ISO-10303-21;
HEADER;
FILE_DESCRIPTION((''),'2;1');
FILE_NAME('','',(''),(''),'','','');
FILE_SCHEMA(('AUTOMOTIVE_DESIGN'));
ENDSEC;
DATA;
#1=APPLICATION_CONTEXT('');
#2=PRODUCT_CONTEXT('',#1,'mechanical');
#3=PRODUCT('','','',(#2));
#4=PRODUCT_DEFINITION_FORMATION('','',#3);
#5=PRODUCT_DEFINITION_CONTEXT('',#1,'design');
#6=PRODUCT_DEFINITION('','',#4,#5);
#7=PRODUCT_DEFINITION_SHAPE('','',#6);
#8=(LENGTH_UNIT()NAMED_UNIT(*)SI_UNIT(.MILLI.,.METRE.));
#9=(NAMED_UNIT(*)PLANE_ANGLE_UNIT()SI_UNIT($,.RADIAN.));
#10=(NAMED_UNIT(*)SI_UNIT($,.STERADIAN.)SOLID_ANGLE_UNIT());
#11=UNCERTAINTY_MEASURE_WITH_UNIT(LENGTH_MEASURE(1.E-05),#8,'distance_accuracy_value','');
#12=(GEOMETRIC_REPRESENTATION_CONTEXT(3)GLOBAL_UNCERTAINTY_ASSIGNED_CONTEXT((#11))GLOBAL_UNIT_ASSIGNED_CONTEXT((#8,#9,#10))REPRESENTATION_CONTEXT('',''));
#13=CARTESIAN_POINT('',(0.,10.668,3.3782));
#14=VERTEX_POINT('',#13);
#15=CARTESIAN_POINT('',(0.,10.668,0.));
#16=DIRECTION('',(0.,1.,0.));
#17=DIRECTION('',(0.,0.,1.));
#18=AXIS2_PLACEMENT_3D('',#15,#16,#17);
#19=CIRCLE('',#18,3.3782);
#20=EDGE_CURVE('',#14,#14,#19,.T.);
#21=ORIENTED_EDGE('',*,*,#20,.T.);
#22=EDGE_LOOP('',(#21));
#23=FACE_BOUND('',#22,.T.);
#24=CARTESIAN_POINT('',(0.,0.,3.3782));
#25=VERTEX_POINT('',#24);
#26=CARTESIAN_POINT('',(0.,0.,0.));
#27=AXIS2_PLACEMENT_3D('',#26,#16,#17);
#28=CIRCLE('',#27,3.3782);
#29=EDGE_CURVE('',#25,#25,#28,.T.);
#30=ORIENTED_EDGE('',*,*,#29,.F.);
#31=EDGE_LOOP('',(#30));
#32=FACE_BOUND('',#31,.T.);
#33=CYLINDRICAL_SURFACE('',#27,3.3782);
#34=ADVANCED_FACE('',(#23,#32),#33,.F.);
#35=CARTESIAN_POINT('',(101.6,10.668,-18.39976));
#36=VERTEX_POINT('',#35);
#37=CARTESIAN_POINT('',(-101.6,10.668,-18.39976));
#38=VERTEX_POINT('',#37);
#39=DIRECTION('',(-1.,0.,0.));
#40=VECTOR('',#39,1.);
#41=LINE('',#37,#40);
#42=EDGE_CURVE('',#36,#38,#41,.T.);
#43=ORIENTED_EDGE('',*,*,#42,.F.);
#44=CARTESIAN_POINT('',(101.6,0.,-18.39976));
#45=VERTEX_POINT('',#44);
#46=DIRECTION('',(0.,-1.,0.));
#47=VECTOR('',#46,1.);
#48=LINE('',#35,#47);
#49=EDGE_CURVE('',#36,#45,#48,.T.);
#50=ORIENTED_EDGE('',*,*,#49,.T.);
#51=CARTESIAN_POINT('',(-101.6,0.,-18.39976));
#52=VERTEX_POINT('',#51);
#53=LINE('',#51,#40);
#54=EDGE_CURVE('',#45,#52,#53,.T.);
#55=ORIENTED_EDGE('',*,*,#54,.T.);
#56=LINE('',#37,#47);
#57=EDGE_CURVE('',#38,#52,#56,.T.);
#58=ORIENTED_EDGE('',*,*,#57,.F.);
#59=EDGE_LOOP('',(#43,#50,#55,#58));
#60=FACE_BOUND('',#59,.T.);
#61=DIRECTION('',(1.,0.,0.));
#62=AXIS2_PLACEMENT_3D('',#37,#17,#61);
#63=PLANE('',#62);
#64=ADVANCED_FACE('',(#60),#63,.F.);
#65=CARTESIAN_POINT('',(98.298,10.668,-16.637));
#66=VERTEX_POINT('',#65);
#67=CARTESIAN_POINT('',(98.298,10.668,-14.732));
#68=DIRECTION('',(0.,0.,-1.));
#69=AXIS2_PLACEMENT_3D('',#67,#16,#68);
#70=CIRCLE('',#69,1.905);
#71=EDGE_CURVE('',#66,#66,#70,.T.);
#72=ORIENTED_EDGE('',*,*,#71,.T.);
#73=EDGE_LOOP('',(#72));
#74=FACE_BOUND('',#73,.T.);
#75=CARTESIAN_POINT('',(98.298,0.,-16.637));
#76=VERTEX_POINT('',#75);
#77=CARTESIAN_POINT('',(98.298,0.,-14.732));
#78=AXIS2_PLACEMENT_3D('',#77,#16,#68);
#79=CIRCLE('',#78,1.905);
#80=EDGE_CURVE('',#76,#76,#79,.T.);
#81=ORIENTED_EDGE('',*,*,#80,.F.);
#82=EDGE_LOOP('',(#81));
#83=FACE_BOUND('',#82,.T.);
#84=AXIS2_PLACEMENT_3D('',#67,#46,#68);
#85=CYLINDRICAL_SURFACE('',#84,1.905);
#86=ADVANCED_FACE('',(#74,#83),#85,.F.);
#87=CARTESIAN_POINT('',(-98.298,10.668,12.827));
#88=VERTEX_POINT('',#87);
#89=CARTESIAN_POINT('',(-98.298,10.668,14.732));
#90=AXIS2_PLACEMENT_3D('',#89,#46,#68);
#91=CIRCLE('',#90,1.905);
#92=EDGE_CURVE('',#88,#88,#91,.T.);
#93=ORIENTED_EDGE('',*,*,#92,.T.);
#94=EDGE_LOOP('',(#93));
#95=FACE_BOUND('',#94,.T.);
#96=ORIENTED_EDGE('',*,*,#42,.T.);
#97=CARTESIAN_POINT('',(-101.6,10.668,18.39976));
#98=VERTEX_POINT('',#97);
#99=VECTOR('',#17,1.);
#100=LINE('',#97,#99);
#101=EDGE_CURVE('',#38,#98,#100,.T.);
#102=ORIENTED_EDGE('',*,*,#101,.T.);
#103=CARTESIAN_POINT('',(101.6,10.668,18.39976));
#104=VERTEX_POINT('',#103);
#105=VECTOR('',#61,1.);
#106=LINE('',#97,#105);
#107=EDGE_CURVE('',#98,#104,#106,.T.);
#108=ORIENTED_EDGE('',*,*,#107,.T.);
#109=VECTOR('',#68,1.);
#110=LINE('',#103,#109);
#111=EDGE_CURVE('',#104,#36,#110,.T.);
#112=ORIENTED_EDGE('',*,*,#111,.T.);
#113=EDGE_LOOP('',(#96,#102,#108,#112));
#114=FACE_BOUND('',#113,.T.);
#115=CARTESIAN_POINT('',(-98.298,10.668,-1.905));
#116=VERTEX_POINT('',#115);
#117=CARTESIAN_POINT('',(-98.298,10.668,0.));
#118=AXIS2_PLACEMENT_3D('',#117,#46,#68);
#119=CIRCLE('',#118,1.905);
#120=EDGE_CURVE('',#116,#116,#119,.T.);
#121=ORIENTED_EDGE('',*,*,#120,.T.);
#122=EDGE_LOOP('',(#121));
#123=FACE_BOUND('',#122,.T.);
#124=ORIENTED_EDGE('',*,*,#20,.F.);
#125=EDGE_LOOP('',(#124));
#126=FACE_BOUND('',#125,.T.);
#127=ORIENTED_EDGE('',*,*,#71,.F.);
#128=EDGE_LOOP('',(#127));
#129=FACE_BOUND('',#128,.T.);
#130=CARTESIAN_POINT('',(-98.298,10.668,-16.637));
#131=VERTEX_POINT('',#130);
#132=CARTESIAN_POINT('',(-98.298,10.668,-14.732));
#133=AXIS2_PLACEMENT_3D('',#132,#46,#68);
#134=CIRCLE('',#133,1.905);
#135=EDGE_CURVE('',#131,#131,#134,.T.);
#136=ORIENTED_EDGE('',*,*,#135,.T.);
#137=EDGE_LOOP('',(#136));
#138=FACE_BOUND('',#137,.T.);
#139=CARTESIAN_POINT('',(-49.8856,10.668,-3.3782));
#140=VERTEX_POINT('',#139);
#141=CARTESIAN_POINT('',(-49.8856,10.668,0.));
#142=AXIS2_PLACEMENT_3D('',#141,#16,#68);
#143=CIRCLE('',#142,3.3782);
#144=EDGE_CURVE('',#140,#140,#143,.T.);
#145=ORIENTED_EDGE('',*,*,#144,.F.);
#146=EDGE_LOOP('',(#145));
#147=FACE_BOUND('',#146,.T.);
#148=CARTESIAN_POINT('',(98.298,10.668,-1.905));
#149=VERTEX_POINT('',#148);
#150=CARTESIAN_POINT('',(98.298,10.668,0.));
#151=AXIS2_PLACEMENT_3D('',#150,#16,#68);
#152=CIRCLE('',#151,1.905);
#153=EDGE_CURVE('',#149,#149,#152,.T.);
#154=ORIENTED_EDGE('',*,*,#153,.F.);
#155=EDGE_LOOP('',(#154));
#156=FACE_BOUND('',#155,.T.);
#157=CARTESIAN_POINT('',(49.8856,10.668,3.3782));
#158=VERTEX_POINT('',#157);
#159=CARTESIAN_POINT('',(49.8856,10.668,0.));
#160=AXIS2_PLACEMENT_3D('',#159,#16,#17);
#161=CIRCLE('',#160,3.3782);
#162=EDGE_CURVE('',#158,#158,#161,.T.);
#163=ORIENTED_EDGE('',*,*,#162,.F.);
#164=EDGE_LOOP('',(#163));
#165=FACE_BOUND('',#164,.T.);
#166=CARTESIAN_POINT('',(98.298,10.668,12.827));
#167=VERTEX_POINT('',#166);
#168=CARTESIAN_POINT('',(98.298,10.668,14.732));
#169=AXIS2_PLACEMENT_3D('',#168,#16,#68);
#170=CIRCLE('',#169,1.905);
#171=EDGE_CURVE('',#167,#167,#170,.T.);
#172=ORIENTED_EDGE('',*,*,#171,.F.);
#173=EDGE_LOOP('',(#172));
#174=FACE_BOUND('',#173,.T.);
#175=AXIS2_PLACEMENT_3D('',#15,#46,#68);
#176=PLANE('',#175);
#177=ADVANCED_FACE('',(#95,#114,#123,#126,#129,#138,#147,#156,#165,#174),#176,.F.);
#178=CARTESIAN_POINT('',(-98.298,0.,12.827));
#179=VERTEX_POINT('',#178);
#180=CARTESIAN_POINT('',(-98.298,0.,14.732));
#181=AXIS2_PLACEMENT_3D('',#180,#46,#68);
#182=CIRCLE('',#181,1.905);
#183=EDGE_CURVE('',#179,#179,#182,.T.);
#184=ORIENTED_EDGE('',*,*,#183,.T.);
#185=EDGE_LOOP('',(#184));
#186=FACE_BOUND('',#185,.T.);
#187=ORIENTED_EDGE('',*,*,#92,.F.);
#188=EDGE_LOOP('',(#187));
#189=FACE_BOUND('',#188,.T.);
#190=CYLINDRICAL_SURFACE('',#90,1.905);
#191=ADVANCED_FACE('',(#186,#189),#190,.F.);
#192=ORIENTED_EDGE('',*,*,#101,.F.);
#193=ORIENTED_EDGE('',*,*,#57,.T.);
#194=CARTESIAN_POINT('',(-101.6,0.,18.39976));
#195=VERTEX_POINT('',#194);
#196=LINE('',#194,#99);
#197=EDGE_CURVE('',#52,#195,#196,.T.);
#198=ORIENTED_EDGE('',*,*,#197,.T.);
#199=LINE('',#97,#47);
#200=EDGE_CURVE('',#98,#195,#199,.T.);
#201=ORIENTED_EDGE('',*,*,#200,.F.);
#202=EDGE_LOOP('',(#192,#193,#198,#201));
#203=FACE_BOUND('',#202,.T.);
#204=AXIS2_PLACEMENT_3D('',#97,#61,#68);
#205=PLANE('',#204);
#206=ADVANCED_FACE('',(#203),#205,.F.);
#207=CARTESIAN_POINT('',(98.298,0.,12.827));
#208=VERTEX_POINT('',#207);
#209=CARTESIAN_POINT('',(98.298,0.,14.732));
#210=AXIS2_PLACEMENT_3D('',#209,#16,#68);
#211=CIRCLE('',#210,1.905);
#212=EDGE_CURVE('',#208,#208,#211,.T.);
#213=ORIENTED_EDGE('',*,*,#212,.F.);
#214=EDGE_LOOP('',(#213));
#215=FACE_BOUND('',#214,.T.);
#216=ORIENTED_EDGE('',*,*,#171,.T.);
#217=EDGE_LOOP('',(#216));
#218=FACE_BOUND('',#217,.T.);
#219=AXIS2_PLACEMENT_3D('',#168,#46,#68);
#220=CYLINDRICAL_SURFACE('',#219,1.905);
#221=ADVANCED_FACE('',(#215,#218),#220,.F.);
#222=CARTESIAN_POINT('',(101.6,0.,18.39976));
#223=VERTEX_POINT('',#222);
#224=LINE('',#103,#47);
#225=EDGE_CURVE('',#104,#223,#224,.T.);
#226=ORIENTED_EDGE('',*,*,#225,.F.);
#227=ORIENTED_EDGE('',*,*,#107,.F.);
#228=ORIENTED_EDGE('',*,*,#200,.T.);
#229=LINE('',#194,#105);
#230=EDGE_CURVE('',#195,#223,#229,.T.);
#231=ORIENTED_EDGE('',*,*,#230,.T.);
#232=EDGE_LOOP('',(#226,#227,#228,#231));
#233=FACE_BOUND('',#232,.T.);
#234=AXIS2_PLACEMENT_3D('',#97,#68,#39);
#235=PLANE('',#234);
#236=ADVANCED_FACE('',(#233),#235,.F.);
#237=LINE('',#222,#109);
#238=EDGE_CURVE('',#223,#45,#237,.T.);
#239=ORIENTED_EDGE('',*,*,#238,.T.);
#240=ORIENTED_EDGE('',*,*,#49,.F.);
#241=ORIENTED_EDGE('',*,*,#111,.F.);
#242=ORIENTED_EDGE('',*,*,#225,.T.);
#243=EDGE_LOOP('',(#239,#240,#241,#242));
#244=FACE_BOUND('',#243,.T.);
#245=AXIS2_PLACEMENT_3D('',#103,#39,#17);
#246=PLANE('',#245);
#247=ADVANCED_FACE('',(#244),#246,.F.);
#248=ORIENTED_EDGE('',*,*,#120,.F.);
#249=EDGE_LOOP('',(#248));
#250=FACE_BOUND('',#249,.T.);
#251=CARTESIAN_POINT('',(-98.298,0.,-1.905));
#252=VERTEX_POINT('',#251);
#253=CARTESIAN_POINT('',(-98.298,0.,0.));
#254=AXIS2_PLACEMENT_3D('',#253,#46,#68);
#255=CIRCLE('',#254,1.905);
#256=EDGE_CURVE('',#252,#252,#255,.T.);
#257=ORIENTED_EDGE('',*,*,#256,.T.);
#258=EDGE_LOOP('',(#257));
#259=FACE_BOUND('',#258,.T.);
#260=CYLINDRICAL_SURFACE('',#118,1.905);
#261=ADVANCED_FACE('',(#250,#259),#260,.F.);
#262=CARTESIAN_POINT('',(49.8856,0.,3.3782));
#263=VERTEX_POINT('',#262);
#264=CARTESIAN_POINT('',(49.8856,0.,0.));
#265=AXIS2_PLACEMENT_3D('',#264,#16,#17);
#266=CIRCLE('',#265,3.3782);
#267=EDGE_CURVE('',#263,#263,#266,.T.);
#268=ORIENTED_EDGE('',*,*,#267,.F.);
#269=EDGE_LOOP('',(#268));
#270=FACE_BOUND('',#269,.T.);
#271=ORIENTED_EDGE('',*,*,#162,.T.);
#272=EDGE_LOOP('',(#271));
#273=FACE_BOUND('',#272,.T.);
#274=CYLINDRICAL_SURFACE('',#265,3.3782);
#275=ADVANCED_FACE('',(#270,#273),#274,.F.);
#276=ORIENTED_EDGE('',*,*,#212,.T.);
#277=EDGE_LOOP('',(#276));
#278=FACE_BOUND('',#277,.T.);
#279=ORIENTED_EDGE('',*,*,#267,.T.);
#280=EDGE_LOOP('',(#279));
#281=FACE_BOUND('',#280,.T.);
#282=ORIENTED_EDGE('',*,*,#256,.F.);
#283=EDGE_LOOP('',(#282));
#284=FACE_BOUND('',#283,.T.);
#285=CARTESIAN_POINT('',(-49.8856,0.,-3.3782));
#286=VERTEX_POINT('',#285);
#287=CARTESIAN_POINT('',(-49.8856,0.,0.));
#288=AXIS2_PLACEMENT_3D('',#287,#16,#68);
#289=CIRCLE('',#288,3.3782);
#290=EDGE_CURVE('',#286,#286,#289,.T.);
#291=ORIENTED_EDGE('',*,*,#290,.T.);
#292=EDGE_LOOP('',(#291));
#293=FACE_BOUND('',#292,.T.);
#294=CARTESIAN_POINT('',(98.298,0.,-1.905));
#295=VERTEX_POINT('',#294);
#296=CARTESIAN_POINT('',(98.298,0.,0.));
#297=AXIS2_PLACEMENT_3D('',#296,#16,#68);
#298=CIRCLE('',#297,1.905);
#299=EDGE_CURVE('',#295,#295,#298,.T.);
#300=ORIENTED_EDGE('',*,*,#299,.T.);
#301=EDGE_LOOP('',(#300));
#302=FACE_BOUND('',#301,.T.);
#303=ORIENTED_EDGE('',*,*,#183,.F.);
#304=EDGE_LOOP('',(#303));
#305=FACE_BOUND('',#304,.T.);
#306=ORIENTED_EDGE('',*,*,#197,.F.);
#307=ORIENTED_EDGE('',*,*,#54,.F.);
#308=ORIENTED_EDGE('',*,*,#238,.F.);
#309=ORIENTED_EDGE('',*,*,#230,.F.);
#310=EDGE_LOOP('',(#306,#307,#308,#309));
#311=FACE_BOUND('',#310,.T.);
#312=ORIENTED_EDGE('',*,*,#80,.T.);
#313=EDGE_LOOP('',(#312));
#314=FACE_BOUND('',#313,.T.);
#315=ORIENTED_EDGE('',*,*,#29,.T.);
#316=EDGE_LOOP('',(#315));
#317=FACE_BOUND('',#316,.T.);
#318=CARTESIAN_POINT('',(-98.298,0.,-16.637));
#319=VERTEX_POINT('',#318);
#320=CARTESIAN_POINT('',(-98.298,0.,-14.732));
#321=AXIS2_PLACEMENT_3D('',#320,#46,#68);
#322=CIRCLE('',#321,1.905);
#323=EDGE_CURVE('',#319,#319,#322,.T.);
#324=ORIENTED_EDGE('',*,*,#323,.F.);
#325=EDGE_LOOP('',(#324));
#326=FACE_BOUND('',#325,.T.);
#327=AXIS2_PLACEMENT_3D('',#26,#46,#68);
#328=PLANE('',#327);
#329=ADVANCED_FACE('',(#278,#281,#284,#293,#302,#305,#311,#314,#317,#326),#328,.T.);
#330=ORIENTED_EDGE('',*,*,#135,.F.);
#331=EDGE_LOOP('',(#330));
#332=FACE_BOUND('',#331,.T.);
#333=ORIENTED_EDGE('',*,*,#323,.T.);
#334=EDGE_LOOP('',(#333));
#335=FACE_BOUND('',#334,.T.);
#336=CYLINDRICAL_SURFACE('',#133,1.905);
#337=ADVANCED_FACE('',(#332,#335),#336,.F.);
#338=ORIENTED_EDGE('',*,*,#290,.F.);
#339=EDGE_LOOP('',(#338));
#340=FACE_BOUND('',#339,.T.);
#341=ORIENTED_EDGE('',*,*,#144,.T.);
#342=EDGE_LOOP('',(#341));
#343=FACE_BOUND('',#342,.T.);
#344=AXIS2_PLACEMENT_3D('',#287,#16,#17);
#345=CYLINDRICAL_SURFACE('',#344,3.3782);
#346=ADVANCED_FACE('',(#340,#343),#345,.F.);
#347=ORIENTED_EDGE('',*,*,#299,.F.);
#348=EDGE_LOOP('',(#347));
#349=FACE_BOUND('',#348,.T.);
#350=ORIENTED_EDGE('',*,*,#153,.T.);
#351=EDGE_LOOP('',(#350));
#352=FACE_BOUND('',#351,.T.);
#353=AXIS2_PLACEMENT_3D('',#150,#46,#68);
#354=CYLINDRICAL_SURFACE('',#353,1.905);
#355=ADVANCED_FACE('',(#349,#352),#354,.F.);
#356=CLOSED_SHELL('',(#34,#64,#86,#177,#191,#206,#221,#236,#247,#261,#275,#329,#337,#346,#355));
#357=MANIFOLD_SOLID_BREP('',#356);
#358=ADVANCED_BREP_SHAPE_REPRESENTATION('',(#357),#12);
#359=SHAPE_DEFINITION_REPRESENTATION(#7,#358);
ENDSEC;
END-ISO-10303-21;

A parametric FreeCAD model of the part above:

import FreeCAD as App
import Part
import Sketcher

V = App.Vector
Q = App.Units.Quantity

doc = App.newDocument("Part")
params = doc.addObject("Spreadsheet::Sheet", "Params")
for row, (alias, value) in enumerate([
    ("sketch1_width", "8 in"),
    ("pad1_length", "0.42 in"),
    ("sketch2_diameter", "0.15 in"),
    ("sketch3_diameter", "0.266 in"),
], start=1):
    params.set(f"A{row}", alias)
    params.set(f"B{row}", "=" + value)
    params.setAlias(f"B{row}", alias)

body = doc.addObject("PartDesign::Body", "Body")

# Sketch on XZ plane
sketch1 = body.newObject("Sketcher::SketchObject", "Sketch")
sketch1.AttachmentSupport = (doc.getObject("XZ_Plane"), [""])
sketch1.MapMode = "FlatFace"
sketch1.addGeometry(Part.LineSegment(V(-102, -18, 0), V(-102, 18, 0)), False)
sketch1.addGeometry(Part.LineSegment(V(-102, 18, 0), V(102, 18, 0)), False)
sketch1.addGeometry(Part.LineSegment(V(102, 18, 0), V(102, -18, 0)), False)
sketch1.addGeometry(Part.LineSegment(V(102, -18, 0), V(-102, -18, 0)), False)
sketch1.addConstraint(Sketcher.Constraint("Coincident", 0, 2, 1, 1))
sketch1.addConstraint(Sketcher.Constraint("Coincident", 1, 2, 2, 1))
sketch1.addConstraint(Sketcher.Constraint("Coincident", 2, 2, 3, 1))
sketch1.addConstraint(Sketcher.Constraint("Coincident", 3, 2, 0, 1))
sketch1.addConstraint(Sketcher.Constraint("Vertical", 0))
sketch1.addConstraint(Sketcher.Constraint("Horizontal", 1))
sketch1.addConstraint(Sketcher.Constraint("Vertical", 2))
sketch1.addConstraint(Sketcher.Constraint("Horizontal", 3))
sketch1.addConstraint(Sketcher.Constraint("Symmetric", 0, 2, 2, 2, -1, 1))
sketch1.addConstraint(Sketcher.Constraint("DistanceX", 1, 1, 1, 2, Q("8 in")))
sketch1.addConstraint(Sketcher.Constraint("DistanceY", 0, 1, 0, 2, Q("1.4488 in")))
sketch1.setExpression("Constraints[9]", "Params.sketch1_width")
pad1 = body.newObject("PartDesign::Pad", "Pad")
pad1.Profile = sketch1
pad1.setExpression("Length", "Params.pad1_length")
pad1.Reversed = True

# Sketch on XZ plane
sketch2 = body.newObject("Sketcher::SketchObject", "Sketch001")
sketch2.AttachmentSupport = (doc.getObject("XZ_Plane"), [""])
sketch2.MapMode = "FlatFace"
sketch2.addGeometry(Part.Circle(V(-98.3, 14.7, 0), V(0, 0, 1), 1.9), False)
sketch2.addGeometry(Part.Circle(V(-98.3, 0, 0), V(0, 0, 1), 1.9), False)
sketch2.addGeometry(Part.Circle(V(-98.3, -14.7, 0), V(0, 0, 1), 1.9), False)
sketch2.addConstraint(Sketcher.Constraint("Equal", 0, 1))
sketch2.addConstraint(Sketcher.Constraint("Equal", 1, 2))
sketch2.addConstraint(Sketcher.Constraint("Symmetric", 0, 3, 2, 3, -1))
sketch2.addConstraint(Sketcher.Constraint("PointOnObject", 1, 3, -1))
sketch2.addConstraint(Sketcher.Constraint("Vertical", 0, 3, 1, 3))
sketch2.addConstraint(Sketcher.Constraint("Diameter", 0, Q("0.15 in")))
sketch2.addConstraint(Sketcher.Constraint("DistanceX", 0, 3, -1, 1, Q("3.87 in")))
sketch2.addConstraint(Sketcher.Constraint("DistanceY", -1, 1, 0, 3, Q("0.58 in")))
sketch2.setExpression("Constraints[5]", "Params.sketch2_diameter")
pocket1 = body.newObject("PartDesign::Pocket", "Pocket")
pocket1.Profile = sketch2
pocket1.Type = "ThroughAll"
doc.recompute()

mirrored = body.newObject("PartDesign::Mirrored", "Mirrored")
mirrored.Originals = [pocket1]
mirrored.MirrorPlane = (doc.getObject("YZ_Plane"), [""])
body.Tip = mirrored

# Sketch on XZ plane
sketch3 = body.newObject("Sketcher::SketchObject", "Sketch002")
sketch3.AttachmentSupport = (doc.getObject("XZ_Plane"), [""])
sketch3.MapMode = "FlatFace"
sketch3.AttachmentOffset = App.Placement(V(0, 0, -0.42 * 25.4), App.Rotation())
sketch3.addGeometry(Part.Circle(V(-49.9, 0, 0), V(0, 0, 1), 3.4), False)
sketch3.addGeometry(Part.Circle(V(0, 0, 0), V(0, 0, 1), 3.4), False)
sketch3.addGeometry(Part.Circle(V(49.9, 0, 0), V(0, 0, 1), 3.4), False)
sketch3.addConstraint(Sketcher.Constraint("Coincident", 1, 3, -1, 1))
sketch3.addConstraint(Sketcher.Constraint("Equal", 0, 1))
sketch3.addConstraint(Sketcher.Constraint("Equal", 1, 2))
sketch3.addConstraint(Sketcher.Constraint("Symmetric", 0, 3, 2, 3, -1, 1))
sketch3.addConstraint(Sketcher.Constraint("PointOnObject", 0, 3, -1))
sketch3.addConstraint(Sketcher.Constraint("Diameter", 0, Q("0.266 in")))
sketch3.addConstraint(Sketcher.Constraint("DistanceX", 0, 3, -1, 1, Q("1.964 in")))
sketch3.setExpression("Constraints[5]", "Params.sketch3_diameter")
pocket2 = body.newObject("PartDesign::Pocket", "Pocket001")
pocket2.Profile = sketch3
pocket2.Type = "ThroughAll"
pocket2.Reversed = True

doc.recompute()
